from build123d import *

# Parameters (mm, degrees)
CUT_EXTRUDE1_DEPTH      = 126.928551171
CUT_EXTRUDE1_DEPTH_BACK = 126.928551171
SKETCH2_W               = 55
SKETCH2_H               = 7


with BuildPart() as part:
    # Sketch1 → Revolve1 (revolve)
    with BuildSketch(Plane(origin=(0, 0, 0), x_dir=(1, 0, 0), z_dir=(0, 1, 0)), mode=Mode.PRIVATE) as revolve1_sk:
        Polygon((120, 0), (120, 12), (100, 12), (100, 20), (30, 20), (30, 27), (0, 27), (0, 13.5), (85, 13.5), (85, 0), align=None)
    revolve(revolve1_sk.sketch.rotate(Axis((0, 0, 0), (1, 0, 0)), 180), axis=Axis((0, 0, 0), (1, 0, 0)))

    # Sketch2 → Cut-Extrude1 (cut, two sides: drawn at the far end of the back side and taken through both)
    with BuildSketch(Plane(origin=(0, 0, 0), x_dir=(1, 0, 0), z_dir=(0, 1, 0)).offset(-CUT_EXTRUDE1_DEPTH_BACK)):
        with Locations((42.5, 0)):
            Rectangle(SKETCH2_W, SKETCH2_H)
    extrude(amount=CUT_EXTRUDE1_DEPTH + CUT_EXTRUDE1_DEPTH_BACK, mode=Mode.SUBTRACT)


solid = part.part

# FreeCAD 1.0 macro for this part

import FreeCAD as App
import Part
import Sketcher
Q = App.Units.Quantity


def add_polygon(sketch, points):
    """Adds a closed chain of lines whose ends are joined by coincident constraints."""
    first, n = sketch.GeometryCount, len(points)
    for a, b in zip(points, points[1:] + points[:1]):
        sketch.addGeometry(Part.LineSegment(App.Vector(*a, 0), App.Vector(*b, 0)), False)
    for i in range(n):
        sketch.addConstraint(Sketcher.Constraint("Coincident", first + i, 2, first + (i + 1) % n, 1))

doc = App.newDocument("Part")
body = doc.addObject("PartDesign::Body", "Body")

sketch1 = body.newObject("Sketcher::SketchObject", "Sketch")
sketch1.AttachmentSupport = (doc.getObject("XZ_Plane"), [""])
sketch1.MapMode = "FlatFace"
add_polygon(sketch1, [(120, 0), (120, -12), (100, -12), (100, -20), (30, -20), (30, -27), (0, -27), (0, -14), (85, -14), (85, 0)])
sketch1.addConstraint([
    Sketcher.Constraint("Vertical", 0),
    Sketcher.Constraint("Horizontal", 1),
    Sketcher.Constraint("Vertical", 2),
    Sketcher.Constraint("Horizontal", 3),
    Sketcher.Constraint("Vertical", 4),
    Sketcher.Constraint("Horizontal", 5),
    Sketcher.Constraint("Vertical", 6),
    Sketcher.Constraint("Horizontal", 7),
    Sketcher.Constraint("Vertical", 8),
    Sketcher.Constraint("Horizontal", 9),
    Sketcher.Constraint("PointOnObject", 5, 2, -2),
    Sketcher.Constraint("PointOnObject", 8, 2, -1),
    Sketcher.Constraint("Equal", 6, 8),
    Sketcher.Constraint("DistanceX", 1, 2, 1, 1, Q("20 mm")),
    Sketcher.Constraint("DistanceX", 3, 2, 3, 1, Q("70 mm")),
    Sketcher.Constraint("DistanceX", 5, 2, 5, 1, Q("30 mm")),
    Sketcher.Constraint("DistanceX", 7, 1, 7, 2, Q("85 mm")),
    Sketcher.Constraint("DistanceY", 0, 2, 0, 1, Q("12 mm")),
    Sketcher.Constraint("DistanceY", 2, 2, 2, 1, Q("8 mm")),
    Sketcher.Constraint("DistanceY", 4, 2, 4, 1, Q("7 mm")),
])
revolution = body.newObject("PartDesign::Revolution", "Revolution")
revolution.Profile = sketch1
revolution.ReferenceAxis = (sketch1, ["H_Axis"])
revolution.Angle = 360

sketch2 = body.newObject("Sketcher::SketchObject", "Sketch001")
sketch2.AttachmentSupport = (doc.getObject("XZ_Plane"), [""])
sketch2.MapMode = "FlatFace"
add_polygon(sketch2, [(15, -4), (15, 4), (70, 4), (70, -4)])
sketch2.addConstraint([
    Sketcher.Constraint("Vertical", 0),
    Sketcher.Constraint("Horizontal", 1),
    Sketcher.Constraint("Vertical", 2),
    Sketcher.Constraint("Horizontal", 3),
    Sketcher.Constraint("DistanceX", 1, 1, 1, 2, Q("55 mm")),
    Sketcher.Constraint("DistanceY", 0, 1, 0, 2, Q("7 mm")),
    Sketcher.Constraint("DistanceX", -1, 1, 0, 2, Q("15 mm")),
    Sketcher.Constraint("DistanceY", -1, 1, 0, 2, Q("3.5 mm")),
])
pocket1 = body.newObject("PartDesign::Pocket", "Pocket")
pocket1.Profile = sketch2
pocket1.Type = "ThroughAll"
pocket1.Midplane = True

doc.recompute()
